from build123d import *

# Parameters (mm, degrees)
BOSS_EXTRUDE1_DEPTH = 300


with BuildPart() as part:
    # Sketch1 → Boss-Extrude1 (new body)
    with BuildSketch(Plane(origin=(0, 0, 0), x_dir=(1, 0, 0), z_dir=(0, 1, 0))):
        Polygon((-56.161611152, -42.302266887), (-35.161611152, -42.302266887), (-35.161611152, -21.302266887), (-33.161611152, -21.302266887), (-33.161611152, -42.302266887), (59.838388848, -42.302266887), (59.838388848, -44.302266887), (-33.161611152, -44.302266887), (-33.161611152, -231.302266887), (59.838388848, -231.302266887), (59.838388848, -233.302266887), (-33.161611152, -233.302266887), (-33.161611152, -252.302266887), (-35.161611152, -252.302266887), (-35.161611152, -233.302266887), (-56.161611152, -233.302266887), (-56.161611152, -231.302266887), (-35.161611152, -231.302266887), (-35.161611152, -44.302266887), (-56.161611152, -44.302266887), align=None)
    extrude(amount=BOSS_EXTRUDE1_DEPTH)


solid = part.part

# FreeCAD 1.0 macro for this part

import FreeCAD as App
import Part
import Sketcher

V = App.Vector

doc = App.newDocument("Part")
body = doc.addObject("PartDesign::Body", "Body")

# Sketch on XZ plane
sketch1 = body.newObject("Sketcher::SketchObject", "Sketch")
sketch1.AttachmentSupport = (doc.getObject("XZ_Plane"), [""])
sketch1.MapMode = "FlatFace"
sketch1.addGeometry([
    Part.LineSegment(V(-35.161611, 42.302267, 0), V(-56.161611, 42.302267, 0)),  # 0
    Part.LineSegment(V(-56.161611, 42.302267, 0), V(-56.161611, 44.302267, 0)),  # 1
    Part.LineSegment(V(-56.161611, 44.302267, 0), V(-35.161611, 44.302267, 0)),  # 2
    Part.LineSegment(V(-35.161611, 44.302267, 0), V(-35.161611, 231.302267, 0)),  # 3
    Part.LineSegment(V(-35.161611, 231.302267, 0), V(-56.161611, 231.302267, 0)),  # 4
    Part.LineSegment(V(-56.161611, 231.302267, 0), V(-56.161611, 233.302267, 0)),  # 5
    Part.LineSegment(V(-56.161611, 233.302267, 0), V(-35.161611, 233.302267, 0)),  # 6
    Part.LineSegment(V(-35.161611, 233.302267, 0), V(-35.161611, 252.302267, 0)),  # 7
    Part.LineSegment(V(-35.161611, 252.302267, 0), V(-33.161611, 252.302267, 0)),  # 8
    Part.LineSegment(V(-33.161611, 252.302267, 0), V(-33.161611, 233.302267, 0)),  # 9
    Part.LineSegment(V(-33.161611, 233.302267, 0), V(59.838389, 233.302267, 0)),  # 10
    Part.LineSegment(V(59.838389, 233.302267, 0), V(59.838389, 231.302267, 0)),  # 11
    Part.LineSegment(V(59.838389, 231.302267, 0), V(-33.161611, 231.302267, 0)),  # 12
    Part.LineSegment(V(-33.161611, 231.302267, 0), V(-33.161611, 44.302267, 0)),  # 13
    Part.LineSegment(V(-33.161611, 44.302267, 0), V(59.838389, 44.302267, 0)),  # 14
    Part.LineSegment(V(59.838389, 44.302267, 0), V(59.838389, 42.302267, 0)),  # 15
    Part.LineSegment(V(59.838389, 42.302267, 0), V(-33.161611, 42.302267, 0)),  # 16
    Part.LineSegment(V(-33.161611, 42.302267, 0), V(-33.161611, 21.302267, 0)),  # 17
    Part.LineSegment(V(-33.161611, 21.302267, 0), V(-35.161611, 21.302267, 0)),  # 18
    Part.LineSegment(V(-35.161611, 21.302267, 0), V(-35.161611, 42.302267, 0)),  # 19
], False)
sketch1.addConstraint([
    Sketcher.Constraint("Coincident", 0, 2, 1, 1),
    Sketcher.Constraint("Coincident", 1, 2, 2, 1),
    Sketcher.Constraint("Coincident", 2, 2, 3, 1),
    Sketcher.Constraint("Coincident", 3, 2, 4, 1),
    Sketcher.Constraint("Coincident", 4, 2, 5, 1),
    Sketcher.Constraint("Coincident", 5, 2, 6, 1),
    Sketcher.Constraint("Coincident", 6, 2, 7, 1),
    Sketcher.Constraint("Coincident", 7, 2, 8, 1),
    Sketcher.Constraint("Coincident", 8, 2, 9, 1),
    Sketcher.Constraint("Coincident", 9, 2, 10, 1),
    Sketcher.Constraint("Coincident", 10, 2, 11, 1),
    Sketcher.Constraint("Coincident", 11, 2, 12, 1),
    Sketcher.Constraint("Coincident", 12, 2, 13, 1),
    Sketcher.Constraint("Coincident", 13, 2, 14, 1),
    Sketcher.Constraint("Coincident", 14, 2, 15, 1),
    Sketcher.Constraint("Coincident", 15, 2, 16, 1),
    Sketcher.Constraint("Coincident", 16, 2, 17, 1),
    Sketcher.Constraint("Coincident", 17, 2, 18, 1),
    Sketcher.Constraint("Coincident", 18, 2, 19, 1),
    Sketcher.Constraint("Coincident", 19, 2, 0, 1),
    Sketcher.Constraint("Horizontal", 0),
    Sketcher.Constraint("Vertical", 1),
    Sketcher.Constraint("Horizontal", 2),
    Sketcher.Constraint("Vertical", 3),
    Sketcher.Constraint("Horizontal", 4),
    Sketcher.Constraint("Vertical", 5),
    Sketcher.Constraint("Horizontal", 6),
    Sketcher.Constraint("Vertical", 7),
    Sketcher.Constraint("Horizontal", 8),
    Sketcher.Constraint("Vertical", 9),
    Sketcher.Constraint("Horizontal", 10),
    Sketcher.Constraint("Vertical", 11),
    Sketcher.Constraint("Horizontal", 12),
    Sketcher.Constraint("Vertical", 13),
    Sketcher.Constraint("Horizontal", 14),
    Sketcher.Constraint("Vertical", 15),
    Sketcher.Constraint("Horizontal", 16),
    Sketcher.Constraint("Vertical", 17),
    Sketcher.Constraint("Horizontal", 18),
    Sketcher.Constraint("Vertical", 19),
    Sketcher.Constraint("Horizontal", 6, 2, 9, 2),
    Sketcher.Constraint("Horizontal", 4, 2, 11, 2),
    Sketcher.Constraint("Horizontal", 2, 2, 13, 2),
    Sketcher.Constraint("Horizontal", 0, 2, 15, 2),
    Sketcher.Constraint("Vertical", 1, 2, 4, 2),
    Sketcher.Constraint("Vertical", 3, 2, 6, 2),
    Sketcher.Constraint("Vertical", 9, 2, 12, 2),
    Sketcher.Constraint("Vertical", 11, 2, 14, 2),
    Sketcher.Constraint("Vertical", 13, 2, 16, 2),
    Sketcher.Constraint("Vertical", 7, 2, 18, 2),
    Sketcher.Constraint("Equal", 18, 1),
    Sketcher.Constraint("Equal", 1, 5),
    Sketcher.Constraint("Equal", 6, 17),
    Sketcher.Constraint("DistanceX", 0, 2, 0, 1, 21.0),
    Sketcher.Constraint("DistanceX", 8, 1, 8, 2, 2.0),
    Sketcher.Constraint("DistanceX", 10, 1, 10, 2, 93.0),
    Sketcher.Constraint("DistanceY", 3, 1, 3, 2, 187.0),
    Sketcher.Constraint("DistanceY", 7, 1, 7, 2, 19.0),
    Sketcher.Constraint("DistanceX", 0, 2, -1, 1, 56.161611),
    Sketcher.Constraint("DistanceY", -1, 1, 0, 2, 42.302267),
])
pad1 = body.newObject("PartDesign::Pad", "Pad")
pad1.Profile = sketch1
pad1.Length = 300
pad1.Reversed = True

doc.recompute()
